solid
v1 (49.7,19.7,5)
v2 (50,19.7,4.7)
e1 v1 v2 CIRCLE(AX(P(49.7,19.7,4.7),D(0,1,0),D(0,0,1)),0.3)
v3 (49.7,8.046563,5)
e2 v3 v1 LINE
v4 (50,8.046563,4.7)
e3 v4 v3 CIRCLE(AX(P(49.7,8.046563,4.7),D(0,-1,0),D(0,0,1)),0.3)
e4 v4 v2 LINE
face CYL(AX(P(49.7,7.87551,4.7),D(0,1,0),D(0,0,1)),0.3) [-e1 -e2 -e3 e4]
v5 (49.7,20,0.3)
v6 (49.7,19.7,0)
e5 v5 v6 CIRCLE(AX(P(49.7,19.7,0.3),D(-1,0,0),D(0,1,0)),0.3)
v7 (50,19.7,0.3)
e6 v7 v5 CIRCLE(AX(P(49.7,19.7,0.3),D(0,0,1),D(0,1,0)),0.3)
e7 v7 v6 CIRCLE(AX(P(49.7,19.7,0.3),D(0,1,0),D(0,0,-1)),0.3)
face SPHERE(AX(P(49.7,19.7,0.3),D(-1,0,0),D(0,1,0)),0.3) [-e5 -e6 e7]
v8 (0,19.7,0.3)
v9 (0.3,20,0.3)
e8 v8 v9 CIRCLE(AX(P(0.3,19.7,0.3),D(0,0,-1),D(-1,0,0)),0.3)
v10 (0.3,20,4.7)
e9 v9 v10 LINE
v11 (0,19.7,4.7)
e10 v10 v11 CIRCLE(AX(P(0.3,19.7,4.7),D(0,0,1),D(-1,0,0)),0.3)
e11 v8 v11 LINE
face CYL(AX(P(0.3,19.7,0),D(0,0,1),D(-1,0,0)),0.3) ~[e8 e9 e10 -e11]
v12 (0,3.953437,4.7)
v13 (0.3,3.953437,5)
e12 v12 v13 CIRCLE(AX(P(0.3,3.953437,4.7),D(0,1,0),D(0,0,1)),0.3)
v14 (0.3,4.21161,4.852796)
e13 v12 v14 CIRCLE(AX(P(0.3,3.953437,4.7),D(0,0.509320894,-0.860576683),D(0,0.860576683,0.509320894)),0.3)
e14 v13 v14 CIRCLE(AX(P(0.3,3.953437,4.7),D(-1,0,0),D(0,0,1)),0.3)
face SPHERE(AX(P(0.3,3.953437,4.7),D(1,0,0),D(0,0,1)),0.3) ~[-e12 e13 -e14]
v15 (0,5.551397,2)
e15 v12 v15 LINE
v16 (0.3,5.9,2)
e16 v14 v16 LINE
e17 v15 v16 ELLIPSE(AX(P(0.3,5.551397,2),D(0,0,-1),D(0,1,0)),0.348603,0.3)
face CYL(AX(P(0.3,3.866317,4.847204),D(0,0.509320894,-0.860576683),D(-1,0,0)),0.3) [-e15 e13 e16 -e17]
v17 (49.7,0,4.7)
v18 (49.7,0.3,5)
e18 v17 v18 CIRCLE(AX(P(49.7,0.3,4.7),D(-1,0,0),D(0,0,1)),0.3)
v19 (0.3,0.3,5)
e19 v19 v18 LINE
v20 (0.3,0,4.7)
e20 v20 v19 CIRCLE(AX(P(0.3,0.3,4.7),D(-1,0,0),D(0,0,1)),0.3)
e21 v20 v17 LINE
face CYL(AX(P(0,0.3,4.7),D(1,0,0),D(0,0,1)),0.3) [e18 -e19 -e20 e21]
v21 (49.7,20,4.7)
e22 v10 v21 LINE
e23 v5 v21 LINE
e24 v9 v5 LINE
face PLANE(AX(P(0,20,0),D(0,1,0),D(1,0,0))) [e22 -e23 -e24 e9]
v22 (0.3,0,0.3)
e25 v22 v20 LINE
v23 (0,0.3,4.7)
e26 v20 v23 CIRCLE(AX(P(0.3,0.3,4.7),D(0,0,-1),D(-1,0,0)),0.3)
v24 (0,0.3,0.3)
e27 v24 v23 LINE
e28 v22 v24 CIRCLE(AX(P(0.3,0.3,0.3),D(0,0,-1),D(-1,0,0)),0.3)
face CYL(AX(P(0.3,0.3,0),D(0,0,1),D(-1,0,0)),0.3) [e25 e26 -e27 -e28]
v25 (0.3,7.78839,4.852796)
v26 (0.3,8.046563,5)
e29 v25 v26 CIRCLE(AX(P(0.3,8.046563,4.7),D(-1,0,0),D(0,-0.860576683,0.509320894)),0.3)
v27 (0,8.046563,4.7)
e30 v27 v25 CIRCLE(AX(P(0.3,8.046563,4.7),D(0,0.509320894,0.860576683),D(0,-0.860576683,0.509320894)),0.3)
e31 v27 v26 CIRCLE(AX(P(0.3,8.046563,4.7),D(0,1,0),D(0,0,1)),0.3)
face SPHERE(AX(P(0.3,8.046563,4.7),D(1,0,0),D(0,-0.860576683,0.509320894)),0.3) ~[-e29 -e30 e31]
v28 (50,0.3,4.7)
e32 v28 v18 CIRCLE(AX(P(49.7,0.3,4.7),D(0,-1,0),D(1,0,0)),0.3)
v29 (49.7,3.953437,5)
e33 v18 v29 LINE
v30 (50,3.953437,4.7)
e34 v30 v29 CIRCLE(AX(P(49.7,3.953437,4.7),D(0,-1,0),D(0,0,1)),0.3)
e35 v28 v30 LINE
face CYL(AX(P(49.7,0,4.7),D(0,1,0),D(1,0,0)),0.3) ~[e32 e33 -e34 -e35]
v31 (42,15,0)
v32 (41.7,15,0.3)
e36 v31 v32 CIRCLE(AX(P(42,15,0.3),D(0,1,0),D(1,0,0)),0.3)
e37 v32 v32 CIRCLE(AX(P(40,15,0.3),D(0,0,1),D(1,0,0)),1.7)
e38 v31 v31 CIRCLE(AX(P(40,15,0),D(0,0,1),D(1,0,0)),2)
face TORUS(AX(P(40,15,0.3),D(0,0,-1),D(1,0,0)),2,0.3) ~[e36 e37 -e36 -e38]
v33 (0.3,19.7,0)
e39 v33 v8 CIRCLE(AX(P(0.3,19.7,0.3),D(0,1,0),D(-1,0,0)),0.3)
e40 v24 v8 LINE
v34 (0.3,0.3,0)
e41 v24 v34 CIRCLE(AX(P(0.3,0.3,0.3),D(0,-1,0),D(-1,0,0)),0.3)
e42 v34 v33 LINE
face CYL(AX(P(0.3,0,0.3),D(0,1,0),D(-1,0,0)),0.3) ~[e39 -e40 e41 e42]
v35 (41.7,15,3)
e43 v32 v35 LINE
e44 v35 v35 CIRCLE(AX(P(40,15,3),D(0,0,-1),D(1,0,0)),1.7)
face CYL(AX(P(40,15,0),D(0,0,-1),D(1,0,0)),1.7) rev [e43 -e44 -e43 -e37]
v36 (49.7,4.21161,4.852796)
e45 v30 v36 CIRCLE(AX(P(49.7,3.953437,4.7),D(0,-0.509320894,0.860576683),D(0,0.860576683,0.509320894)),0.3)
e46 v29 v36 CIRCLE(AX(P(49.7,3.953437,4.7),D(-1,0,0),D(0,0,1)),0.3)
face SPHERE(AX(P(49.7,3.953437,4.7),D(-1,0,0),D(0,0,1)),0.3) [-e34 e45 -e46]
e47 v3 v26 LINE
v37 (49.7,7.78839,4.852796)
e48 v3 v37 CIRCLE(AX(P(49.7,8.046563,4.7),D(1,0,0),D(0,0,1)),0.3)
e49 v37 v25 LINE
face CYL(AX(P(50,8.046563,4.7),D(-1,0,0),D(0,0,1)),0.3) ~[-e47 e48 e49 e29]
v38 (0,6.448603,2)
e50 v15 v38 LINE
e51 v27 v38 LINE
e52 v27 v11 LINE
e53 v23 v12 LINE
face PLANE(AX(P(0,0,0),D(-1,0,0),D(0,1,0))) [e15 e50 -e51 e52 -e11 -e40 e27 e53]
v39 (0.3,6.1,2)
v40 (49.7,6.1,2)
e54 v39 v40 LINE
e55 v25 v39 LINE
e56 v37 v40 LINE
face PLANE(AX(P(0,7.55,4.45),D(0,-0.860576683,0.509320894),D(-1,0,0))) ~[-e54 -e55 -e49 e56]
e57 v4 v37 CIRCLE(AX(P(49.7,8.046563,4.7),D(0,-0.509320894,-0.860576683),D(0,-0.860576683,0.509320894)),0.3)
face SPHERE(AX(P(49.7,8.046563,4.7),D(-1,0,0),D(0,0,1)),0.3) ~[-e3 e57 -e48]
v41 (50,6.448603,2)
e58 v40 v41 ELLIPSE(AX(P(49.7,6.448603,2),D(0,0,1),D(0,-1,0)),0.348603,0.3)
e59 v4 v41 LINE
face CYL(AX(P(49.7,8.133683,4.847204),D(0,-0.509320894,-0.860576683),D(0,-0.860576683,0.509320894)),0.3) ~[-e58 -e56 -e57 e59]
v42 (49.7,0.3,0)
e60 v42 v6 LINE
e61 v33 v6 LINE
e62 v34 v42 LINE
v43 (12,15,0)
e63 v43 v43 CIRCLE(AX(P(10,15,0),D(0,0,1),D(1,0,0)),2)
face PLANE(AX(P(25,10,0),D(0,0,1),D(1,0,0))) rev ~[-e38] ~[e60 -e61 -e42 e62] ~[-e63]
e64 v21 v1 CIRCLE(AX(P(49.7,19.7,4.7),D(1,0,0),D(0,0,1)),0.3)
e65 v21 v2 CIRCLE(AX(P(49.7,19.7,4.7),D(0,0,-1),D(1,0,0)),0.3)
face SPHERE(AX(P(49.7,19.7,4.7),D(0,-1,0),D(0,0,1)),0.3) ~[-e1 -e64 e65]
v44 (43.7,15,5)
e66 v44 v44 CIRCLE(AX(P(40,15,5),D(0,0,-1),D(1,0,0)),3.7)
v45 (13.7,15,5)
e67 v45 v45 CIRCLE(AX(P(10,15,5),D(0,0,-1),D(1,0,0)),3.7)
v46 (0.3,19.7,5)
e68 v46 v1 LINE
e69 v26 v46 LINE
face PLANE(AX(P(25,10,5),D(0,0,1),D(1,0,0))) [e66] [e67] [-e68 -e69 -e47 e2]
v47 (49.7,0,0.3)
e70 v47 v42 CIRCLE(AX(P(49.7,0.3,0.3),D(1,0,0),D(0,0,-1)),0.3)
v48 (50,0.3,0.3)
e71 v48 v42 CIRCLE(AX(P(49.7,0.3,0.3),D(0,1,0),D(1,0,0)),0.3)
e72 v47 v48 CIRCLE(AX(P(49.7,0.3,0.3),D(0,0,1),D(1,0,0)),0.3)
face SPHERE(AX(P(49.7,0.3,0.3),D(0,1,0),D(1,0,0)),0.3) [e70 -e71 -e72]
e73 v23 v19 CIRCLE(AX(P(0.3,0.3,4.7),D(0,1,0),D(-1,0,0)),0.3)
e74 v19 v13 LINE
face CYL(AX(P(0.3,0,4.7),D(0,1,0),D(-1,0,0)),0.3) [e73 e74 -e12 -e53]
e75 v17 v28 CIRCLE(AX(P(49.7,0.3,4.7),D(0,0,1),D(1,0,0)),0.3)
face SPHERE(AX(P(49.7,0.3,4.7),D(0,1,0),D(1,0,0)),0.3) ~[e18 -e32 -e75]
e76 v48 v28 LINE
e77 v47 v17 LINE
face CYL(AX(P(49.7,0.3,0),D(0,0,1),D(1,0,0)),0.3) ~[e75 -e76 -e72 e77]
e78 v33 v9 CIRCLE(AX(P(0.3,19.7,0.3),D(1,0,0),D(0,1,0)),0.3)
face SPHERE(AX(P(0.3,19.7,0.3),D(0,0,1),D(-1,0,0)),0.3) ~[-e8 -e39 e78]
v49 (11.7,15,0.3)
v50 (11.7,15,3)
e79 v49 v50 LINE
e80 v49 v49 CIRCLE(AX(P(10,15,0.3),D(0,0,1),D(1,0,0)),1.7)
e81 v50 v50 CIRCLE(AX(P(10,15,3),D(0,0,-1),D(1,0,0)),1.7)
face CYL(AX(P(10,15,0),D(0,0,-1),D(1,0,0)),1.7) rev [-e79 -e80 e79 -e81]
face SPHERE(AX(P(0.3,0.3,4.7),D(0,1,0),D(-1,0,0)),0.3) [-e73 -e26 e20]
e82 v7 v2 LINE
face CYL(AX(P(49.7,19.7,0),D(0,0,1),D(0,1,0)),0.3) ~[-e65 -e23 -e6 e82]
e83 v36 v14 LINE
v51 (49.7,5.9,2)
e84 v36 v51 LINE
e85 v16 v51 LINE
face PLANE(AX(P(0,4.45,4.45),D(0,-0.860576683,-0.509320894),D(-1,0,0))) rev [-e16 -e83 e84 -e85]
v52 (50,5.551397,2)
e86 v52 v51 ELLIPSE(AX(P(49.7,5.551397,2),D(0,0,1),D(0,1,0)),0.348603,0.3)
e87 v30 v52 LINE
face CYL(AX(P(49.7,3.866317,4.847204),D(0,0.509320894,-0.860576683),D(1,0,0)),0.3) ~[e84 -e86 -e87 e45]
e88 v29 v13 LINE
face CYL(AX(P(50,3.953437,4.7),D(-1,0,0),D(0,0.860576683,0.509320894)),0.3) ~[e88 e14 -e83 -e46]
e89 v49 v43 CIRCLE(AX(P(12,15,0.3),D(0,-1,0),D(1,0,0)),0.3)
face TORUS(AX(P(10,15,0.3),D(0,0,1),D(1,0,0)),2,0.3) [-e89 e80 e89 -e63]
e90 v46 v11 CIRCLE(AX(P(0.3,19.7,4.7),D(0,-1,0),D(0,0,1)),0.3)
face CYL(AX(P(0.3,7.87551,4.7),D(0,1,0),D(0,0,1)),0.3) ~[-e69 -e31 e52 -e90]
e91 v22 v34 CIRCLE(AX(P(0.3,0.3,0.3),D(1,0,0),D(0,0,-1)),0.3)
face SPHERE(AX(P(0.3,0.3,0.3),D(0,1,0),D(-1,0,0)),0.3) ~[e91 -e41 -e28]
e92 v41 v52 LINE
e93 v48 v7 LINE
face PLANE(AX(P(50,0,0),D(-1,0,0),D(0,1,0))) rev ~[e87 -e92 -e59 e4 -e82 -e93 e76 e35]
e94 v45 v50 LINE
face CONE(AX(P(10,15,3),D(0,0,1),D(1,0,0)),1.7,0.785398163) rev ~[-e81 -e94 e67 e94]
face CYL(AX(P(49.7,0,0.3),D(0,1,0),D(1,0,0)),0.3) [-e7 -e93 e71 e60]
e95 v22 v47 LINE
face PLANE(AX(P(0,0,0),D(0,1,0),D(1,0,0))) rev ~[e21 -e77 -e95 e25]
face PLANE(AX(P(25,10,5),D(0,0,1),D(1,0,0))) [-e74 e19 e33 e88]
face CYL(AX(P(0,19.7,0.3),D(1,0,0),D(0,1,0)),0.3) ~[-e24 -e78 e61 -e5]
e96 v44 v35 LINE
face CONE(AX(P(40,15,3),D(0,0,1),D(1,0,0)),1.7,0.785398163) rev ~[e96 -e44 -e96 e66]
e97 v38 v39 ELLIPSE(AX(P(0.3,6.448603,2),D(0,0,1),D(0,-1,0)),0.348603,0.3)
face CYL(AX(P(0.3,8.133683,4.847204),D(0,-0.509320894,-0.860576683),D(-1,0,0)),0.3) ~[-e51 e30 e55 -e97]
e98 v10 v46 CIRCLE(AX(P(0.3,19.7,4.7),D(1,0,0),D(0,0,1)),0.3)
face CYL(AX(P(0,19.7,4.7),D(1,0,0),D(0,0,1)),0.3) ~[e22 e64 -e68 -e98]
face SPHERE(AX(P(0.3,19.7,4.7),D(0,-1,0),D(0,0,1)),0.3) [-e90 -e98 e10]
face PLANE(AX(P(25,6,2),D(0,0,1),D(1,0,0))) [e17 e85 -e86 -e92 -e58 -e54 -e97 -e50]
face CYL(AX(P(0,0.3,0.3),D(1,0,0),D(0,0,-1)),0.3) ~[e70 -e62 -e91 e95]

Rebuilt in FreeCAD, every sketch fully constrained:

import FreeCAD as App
import Part
import Sketcher
from FreeCAD import Vector
Q = App.Units.Quantity


def edges_at(feature, points):
    """Names of the edges that pass closest to the given points."""
    edges = feature.Shape.Edges
    near = lambda p: min(range(len(edges)), key=lambda i: edges[i].distToShape(Part.Vertex(*p))[0])
    return sorted({f"Edge{near(p) + 1}" for p in points})

doc = App.newDocument("Part")
body = doc.addObject("PartDesign::Body", "Body")

# Sketch on XY plane
sketch1 = doc.addObject("Sketcher::SketchObject", "Sketch")
body.addObject(sketch1)
sketch1.AttachmentSupport = (doc.XY_Plane, [""])
sketch1.MapMode = "FlatFace"
sketch1.addGeometry(Part.Circle(Vector(10, 15, 0), Vector(0, 0, 1), 1.7), False)
sketch1.addConstraint([
    Sketcher.Constraint("Diameter", 0, Q("3.4 mm")),
    Sketcher.Constraint("DistanceX", -1, 1, 0, 3, Q("10 mm")),
    Sketcher.Constraint("DistanceY", -1, 1, 0, 3, Q("15 mm")),
])
pad1 = doc.addObject("PartDesign::Pad", "Pad")
body.addObject(pad1)
pad1.Profile = sketch1
pad1.Length = 10
body2 = doc.addObject("PartDesign::Body", "Body001")

# Sketch on XY plane
sketch2 = doc.addObject("Sketcher::SketchObject", "Sketch001")
body2.addObject(sketch2)
sketch2.AttachmentSupport = (doc.getObject("XY_Plane001"), [""])
sketch2.MapMode = "FlatFace"
sketch2.addGeometry(Part.Circle(Vector(40, 15, 0), Vector(0, 0, 1), 1.7), False)
sketch2.addConstraint([
    Sketcher.Constraint("Diameter", 0, Q("3.4 mm")),
    Sketcher.Constraint("DistanceX", -1, 1, 0, 3, Q("40 mm")),
    Sketcher.Constraint("DistanceY", -1, 1, 0, 3, Q("15 mm")),
])
pad2 = doc.addObject("PartDesign::Pad", "Pad001")
body2.addObject(pad2)
pad2.Profile = sketch2
pad2.Length = 10
body3 = doc.addObject("PartDesign::Body", "Body002")

# Sketch on XY plane
sketch3 = doc.addObject("Sketcher::SketchObject", "Sketch002")
body3.addObject(sketch3)
sketch3.AttachmentSupport = (doc.getObject("XY_Plane002"), [""])
sketch3.MapMode = "FlatFace"
sketch3.AttachmentOffset = App.Placement(Vector(0, 0, 2), App.Rotation())
sketch3.addGeometry([
    Part.LineSegment(Vector(0, 6, 0), Vector(0, 0, 0)),
    Part.LineSegment(Vector(0, 0, 0), Vector(50, 0, 0)),
    Part.LineSegment(Vector(50, 0, 0), Vector(50, 6, 0)),
    Part.LineSegment(Vector(50, 6, 0), Vector(0, 6, 0)),
], False)
sketch3.addConstraint([
    Sketcher.Constraint("Coincident", 0, 2, 1, 1),
    Sketcher.Constraint("Coincident", 1, 2, 2, 1),
    Sketcher.Constraint("Coincident", 2, 2, 3, 1),
    Sketcher.Constraint("Coincident", 3, 2, 0, 1),
    Sketcher.Constraint("Vertical", 0),
    Sketcher.Constraint("Horizontal", 1),
    Sketcher.Constraint("Vertical", 2),
    Sketcher.Constraint("Horizontal", 3),
    Sketcher.Constraint("Coincident", 0, 2, -1, 1),
    Sketcher.Constraint("DistanceX", 1, 1, 1, 2, Q("50 mm")),
    Sketcher.Constraint("DistanceY", 0, 2, 0, 1, Q("6 mm")),
])
pad3 = doc.addObject("PartDesign::Pad", "Pad002")
body3.addObject(pad3)
pad3.Profile = sketch3
pad3.Length = 5
doc.recompute()

chamfer = doc.addObject("PartDesign::Chamfer", "Chamfer")
body3.addObject(chamfer)
chamfer.Base = (pad3, edges_at(pad3, [(25, 6, 2)]))
chamfer.ChamferType = "Two distances"
chamfer.Size = 4.9
chamfer.Size2 = 2.9
doc.recompute()

chamfer2 = doc.addObject("PartDesign::Chamfer", "Chamfer001")
body3.addObject(chamfer2)
chamfer2.Base = (chamfer, edges_at(chamfer, [(25, 0, 2)]))
chamfer2.ChamferType = "Two distances"
chamfer2.Size = 4.9
chamfer2.Size2 = 2.9
chamfer2.FlipDirection = True
body4 = doc.addObject("PartDesign::Body", "Body003")
doc.recompute()

body3.Placement = App.Placement(Vector(0, 3, 0), App.Rotation(Vector(0, 0, 1), 0))
boolean = doc.addObject("PartDesign::Boolean", "Boolean")
body4.addObject(boolean)
boolean.Type = "Fuse"
boolean.addObjects([body3])
body5 = doc.addObject("PartDesign::Body", "Body004")

# Sketch on XY plane
sketch4 = doc.addObject("Sketcher::SketchObject", "Sketch003")
body5.addObject(sketch4)
sketch4.AttachmentSupport = (doc.getObject("XY_Plane004"), [""])
sketch4.MapMode = "FlatFace"
sketch4.addGeometry([
    Part.LineSegment(Vector(0, 20, 0), Vector(0, 0, 0)),
    Part.LineSegment(Vector(0, 0, 0), Vector(50, 0, 0)),
    Part.LineSegment(Vector(50, 0, 0), Vector(50, 20, 0)),
    Part.LineSegment(Vector(50, 20, 0), Vector(0, 20, 0)),
], False)
sketch4.addConstraint([
    Sketcher.Constraint("Coincident", 0, 2, 1, 1),
    Sketcher.Constraint("Coincident", 1, 2, 2, 1),
    Sketcher.Constraint("Coincident", 2, 2, 3, 1),
    Sketcher.Constraint("Coincident", 3, 2, 0, 1),
    Sketcher.Constraint("Vertical", 0),
    Sketcher.Constraint("Horizontal", 1),
    Sketcher.Constraint("Vertical", 2),
    Sketcher.Constraint("Horizontal", 3),
    Sketcher.Constraint("Coincident", 0, 2, -1, 1),
    Sketcher.Constraint("DistanceX", 1, 1, 1, 2, Q("50 mm")),
    Sketcher.Constraint("DistanceY", 0, 2, 0, 1, Q("20 mm")),
])
pad4 = doc.addObject("PartDesign::Pad", "Pad003")
body5.addObject(pad4)
pad4.Profile = sketch4
pad4.Length = 5
doc.recompute()

boolean2 = doc.addObject("PartDesign::Boolean", "Boolean001")
body5.addObject(boolean2)
boolean2.Type = "Cut"
boolean2.addObjects([body4])
doc.recompute()

boolean3 = doc.addObject("PartDesign::Boolean", "Boolean002")
body5.addObject(boolean3)
boolean3.Type = "Cut"
boolean3.addObjects([body2])
doc.recompute()

boolean4 = doc.addObject("PartDesign::Boolean", "Boolean003")
body5.addObject(boolean4)
boolean4.Type = "Cut"
boolean4.addObjects([body])
doc.recompute()

chamfer3 = doc.addObject("PartDesign::Chamfer", "Chamfer002")
body5.addObject(chamfer3)
chamfer3.Base = (boolean4, edges_at(boolean4, [(8.3, 15, 5), (38.3, 15, 5)]))
chamfer3.Size = 2
doc.recompute()

fillet = doc.addObject("PartDesign::Fillet", "Fillet")
body5.addObject(fillet)
fillet.Base = (chamfer3, edges_at(chamfer3, [
    (0, 13.938, 5),
    (25, 7.876, 5),
    (50, 13.938, 5),
    (25, 20, 5),
    (0, 2.062, 5),
    (0, 5.012, 3.5),
    (0, 6.988, 3.5),
    (0, 20, 2.5),
    (0, 10, 0),
    (0, 0, 2.5),
    (50, 6.988, 3.5),
    (25, 20, 0),
    (50, 20, 2.5),
    (50, 2.062, 5),
    (50, 5.012, 3.5),
    (50, 10, 0),
    (50, 0, 2.5),
    (8.3, 15, 0),
    (25, 4.124, 5),
    (25, 0, 5),
    (25, 0, 0),
    (38.3, 15, 0),
]))
fillet.Radius = 0.3

doc.recompute()
